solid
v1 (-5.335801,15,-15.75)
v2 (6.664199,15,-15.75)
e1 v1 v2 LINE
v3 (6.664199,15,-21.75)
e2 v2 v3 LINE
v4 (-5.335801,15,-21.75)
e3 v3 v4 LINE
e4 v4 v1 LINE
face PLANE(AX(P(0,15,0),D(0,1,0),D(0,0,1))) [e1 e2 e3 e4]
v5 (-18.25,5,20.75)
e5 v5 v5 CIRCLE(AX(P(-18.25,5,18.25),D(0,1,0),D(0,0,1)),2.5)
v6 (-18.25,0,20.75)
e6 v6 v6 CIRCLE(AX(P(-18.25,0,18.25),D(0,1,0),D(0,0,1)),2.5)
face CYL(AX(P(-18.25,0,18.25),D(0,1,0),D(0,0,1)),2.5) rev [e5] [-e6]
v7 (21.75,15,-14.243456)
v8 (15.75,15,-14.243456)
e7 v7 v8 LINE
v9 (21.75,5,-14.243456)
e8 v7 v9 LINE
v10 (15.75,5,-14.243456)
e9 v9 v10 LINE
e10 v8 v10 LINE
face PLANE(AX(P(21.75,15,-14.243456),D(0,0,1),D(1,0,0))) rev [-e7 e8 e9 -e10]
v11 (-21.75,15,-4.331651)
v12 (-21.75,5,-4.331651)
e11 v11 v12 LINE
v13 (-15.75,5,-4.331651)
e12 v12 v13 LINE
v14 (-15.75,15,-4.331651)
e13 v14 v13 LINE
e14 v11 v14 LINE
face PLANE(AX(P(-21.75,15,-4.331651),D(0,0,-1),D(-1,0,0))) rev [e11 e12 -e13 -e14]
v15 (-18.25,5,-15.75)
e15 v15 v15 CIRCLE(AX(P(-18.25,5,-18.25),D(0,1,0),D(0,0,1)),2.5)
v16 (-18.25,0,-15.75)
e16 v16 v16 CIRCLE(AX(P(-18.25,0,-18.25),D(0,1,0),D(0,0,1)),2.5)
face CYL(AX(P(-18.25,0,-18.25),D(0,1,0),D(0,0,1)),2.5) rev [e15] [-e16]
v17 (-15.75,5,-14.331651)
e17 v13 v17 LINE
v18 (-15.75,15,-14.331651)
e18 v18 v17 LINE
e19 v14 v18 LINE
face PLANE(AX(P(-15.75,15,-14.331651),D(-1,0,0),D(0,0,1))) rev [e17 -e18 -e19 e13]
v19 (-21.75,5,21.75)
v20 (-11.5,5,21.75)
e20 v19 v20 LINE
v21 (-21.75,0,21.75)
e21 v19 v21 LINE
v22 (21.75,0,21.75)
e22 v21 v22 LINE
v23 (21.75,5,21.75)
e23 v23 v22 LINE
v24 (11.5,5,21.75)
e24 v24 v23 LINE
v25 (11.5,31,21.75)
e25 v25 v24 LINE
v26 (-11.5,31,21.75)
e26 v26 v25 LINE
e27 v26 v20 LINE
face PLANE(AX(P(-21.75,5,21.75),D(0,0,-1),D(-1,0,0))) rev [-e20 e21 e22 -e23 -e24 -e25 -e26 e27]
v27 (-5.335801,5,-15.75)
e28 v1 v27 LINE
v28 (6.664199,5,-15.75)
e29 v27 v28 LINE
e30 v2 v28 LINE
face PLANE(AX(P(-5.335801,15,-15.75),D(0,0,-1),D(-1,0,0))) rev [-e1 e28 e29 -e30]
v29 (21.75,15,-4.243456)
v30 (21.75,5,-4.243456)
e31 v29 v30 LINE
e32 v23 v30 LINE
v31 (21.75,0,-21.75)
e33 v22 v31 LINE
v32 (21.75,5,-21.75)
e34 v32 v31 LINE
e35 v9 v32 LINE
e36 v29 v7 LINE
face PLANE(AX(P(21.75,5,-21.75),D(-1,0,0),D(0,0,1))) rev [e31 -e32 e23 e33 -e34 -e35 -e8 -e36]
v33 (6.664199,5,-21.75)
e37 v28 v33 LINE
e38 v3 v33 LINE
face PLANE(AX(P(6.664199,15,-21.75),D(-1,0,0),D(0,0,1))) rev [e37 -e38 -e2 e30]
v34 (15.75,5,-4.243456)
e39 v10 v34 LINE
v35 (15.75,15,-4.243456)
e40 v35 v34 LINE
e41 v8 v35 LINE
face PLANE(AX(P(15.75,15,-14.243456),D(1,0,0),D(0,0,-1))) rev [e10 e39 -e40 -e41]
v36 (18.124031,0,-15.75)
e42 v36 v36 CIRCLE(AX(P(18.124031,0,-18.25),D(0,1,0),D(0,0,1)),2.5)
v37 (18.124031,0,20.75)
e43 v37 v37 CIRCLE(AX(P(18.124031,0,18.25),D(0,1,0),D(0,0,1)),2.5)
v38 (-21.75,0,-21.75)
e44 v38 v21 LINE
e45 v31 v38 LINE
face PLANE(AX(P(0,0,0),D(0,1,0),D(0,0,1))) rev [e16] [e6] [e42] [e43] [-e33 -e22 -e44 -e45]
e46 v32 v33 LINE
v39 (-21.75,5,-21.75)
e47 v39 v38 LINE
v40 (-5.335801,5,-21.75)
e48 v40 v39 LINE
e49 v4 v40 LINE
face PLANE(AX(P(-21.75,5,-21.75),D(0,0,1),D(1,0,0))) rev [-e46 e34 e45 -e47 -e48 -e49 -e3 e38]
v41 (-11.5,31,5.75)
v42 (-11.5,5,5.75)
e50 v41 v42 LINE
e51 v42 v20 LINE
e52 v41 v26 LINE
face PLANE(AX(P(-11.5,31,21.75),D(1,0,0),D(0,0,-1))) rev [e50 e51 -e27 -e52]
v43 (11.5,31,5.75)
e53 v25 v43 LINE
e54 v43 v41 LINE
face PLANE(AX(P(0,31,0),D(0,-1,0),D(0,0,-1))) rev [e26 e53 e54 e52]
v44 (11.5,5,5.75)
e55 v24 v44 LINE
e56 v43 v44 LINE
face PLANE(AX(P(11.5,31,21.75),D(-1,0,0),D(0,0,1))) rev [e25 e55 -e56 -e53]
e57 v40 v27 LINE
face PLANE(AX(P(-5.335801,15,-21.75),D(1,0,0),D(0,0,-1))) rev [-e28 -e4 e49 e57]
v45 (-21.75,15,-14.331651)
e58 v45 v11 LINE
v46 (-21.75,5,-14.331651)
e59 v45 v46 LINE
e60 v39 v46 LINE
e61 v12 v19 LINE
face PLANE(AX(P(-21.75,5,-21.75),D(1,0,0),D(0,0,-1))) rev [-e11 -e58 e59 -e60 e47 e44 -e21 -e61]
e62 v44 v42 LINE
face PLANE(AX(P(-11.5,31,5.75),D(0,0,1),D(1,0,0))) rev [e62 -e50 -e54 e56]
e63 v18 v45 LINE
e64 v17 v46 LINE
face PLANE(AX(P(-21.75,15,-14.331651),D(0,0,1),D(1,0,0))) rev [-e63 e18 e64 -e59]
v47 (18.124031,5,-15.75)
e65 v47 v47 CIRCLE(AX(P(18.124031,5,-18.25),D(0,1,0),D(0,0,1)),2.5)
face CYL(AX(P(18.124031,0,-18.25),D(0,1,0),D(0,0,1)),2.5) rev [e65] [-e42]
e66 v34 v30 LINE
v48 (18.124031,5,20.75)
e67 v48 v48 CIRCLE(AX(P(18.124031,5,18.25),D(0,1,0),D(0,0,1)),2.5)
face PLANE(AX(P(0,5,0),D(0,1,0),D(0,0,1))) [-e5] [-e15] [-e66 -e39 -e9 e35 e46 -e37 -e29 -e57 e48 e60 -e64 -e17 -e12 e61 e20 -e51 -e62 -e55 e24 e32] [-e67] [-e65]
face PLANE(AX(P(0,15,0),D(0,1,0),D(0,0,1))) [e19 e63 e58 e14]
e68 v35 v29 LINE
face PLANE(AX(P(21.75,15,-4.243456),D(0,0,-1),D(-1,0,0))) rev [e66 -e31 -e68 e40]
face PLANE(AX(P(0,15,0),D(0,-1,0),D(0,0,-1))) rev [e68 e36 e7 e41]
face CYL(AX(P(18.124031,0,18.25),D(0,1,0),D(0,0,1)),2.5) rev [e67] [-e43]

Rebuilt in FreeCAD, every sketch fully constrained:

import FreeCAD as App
import Part
import Sketcher


def add_polygon(sketch, points):
    """Adds a closed chain of lines whose ends are joined by coincident constraints."""
    first, n = sketch.GeometryCount, len(points)
    for a, b in zip(points, points[1:] + points[:1]):
        sketch.addGeometry(Part.LineSegment(App.Vector(*a, 0), App.Vector(*b, 0)), False)
    for i in range(n):
        sketch.addConstraint(Sketcher.Constraint("Coincident", first + i, 2, first + (i + 1) % n, 1))

doc = App.newDocument("Part")
body = doc.addObject("PartDesign::Body", "Body")

# Sketch on XZ plane
sketch1 = doc.addObject("Sketcher::SketchObject", "Sketch")
body.addObject(sketch1)
sketch1.AttachmentSupport = (doc.XZ_Plane, [""])
sketch1.MapMode = "FlatFace"
add_polygon(sketch1, [(-21.75, -21.75), (-21.75, 21.75), (21.75, 21.75), (21.75, -21.75)])  # lines 0-3
sketch1.addConstraint([
    Sketcher.Constraint("Vertical", 0),
    Sketcher.Constraint("Horizontal", 1),
    Sketcher.Constraint("Vertical", 2),
    Sketcher.Constraint("Horizontal", 3),
    Sketcher.Constraint("Symmetric", 0, 2, 2, 2, -1, 1),
    Sketcher.Constraint("Equal", 3, 0),
    Sketcher.Constraint("DistanceX", 1, 1, 1, 2, 43.5),
])
pad1 = doc.addObject("PartDesign::Pad", "Pad")
body.addObject(pad1)
pad1.Profile = sketch1
pad1.Length = 5
pad1.Reversed = True

# Sketch on XZ plane
sketch2 = doc.addObject("Sketcher::SketchObject", "Sketch001")
body.addObject(sketch2)
sketch2.AttachmentSupport = (doc.XZ_Plane, [""])
sketch2.MapMode = "FlatFace"
sketch2.AttachmentOffset = App.Placement(App.Vector(0, 0, -5), App.Rotation())
add_polygon(sketch2, [(-11.5, 5.75), (-11.5, 21.75), (11.5, 21.75), (11.5, 5.75)])  # lines 0-3
sketch2.addConstraint([
    Sketcher.Constraint("Vertical", 0),
    Sketcher.Constraint("Horizontal", 1),
    Sketcher.Constraint("Vertical", 2),
    Sketcher.Constraint("Horizontal", 3),
    Sketcher.Constraint("DistanceX", 1, 1, 1, 2, 23.0),
    Sketcher.Constraint("DistanceY", 0, 1, 0, 2, 16.0),
    Sketcher.Constraint("DistanceX", 0, 2, -1, 1, 11.5),
    Sketcher.Constraint("DistanceY", -1, 1, 0, 2, 21.75),
])
pad2 = doc.addObject("PartDesign::Pad", "Pad001")
body.addObject(pad2)
pad2.Profile = sketch2
pad2.Length = 26
pad2.Reversed = True

# Sketch on XZ plane
sketch3 = doc.addObject("Sketcher::SketchObject", "Sketch002")
body.addObject(sketch3)
sketch3.AttachmentSupport = (doc.XZ_Plane, [""])
sketch3.MapMode = "FlatFace"
sketch3.AttachmentOffset = App.Placement(App.Vector(0, 0, -5), App.Rotation())
add_polygon(sketch3, [(-21.75, -14.331651), (-21.75, -4.331651), (-15.75, -4.331651), (-15.75, -14.331651)])  # lines 0-3
add_polygon(sketch3, [(-5.335801, -21.75), (-5.335801, -15.75), (6.664199, -15.75), (6.664199, -21.75)])  # lines 4-7
add_polygon(sketch3, [(15.75, -14.243456), (15.75, -4.243456), (21.75, -4.243456), (21.75, -14.243456)])  # lines 8-11
sketch3.addConstraint([
    Sketcher.Constraint("Vertical", 0),
    Sketcher.Constraint("Horizontal", 1),
    Sketcher.Constraint("Vertical", 2),
    Sketcher.Constraint("Horizontal", 3),
    Sketcher.Constraint("Vertical", 4),
    Sketcher.Constraint("Horizontal", 5),
    Sketcher.Constraint("Vertical", 6),
    Sketcher.Constraint("Horizontal", 7),
    Sketcher.Constraint("Vertical", 8),
    Sketcher.Constraint("Horizontal", 9),
    Sketcher.Constraint("Vertical", 10),
    Sketcher.Constraint("Horizontal", 11),
    Sketcher.Constraint("Equal", 3, 9),
    Sketcher.Constraint("Equal", 11, 4),
    Sketcher.Constraint("Equal", 2, 8),
    Sketcher.Constraint("DistanceX", 1, 1, 1, 2, 6.0),
    Sketcher.Constraint("DistanceX", 5, 1, 5, 2, 12.0),
    Sketcher.Constraint("DistanceY", 0, 1, 0, 2, 10.0),
    Sketcher.Constraint("DistanceX", 1, 2, 8, 2, 31.5),
    Sketcher.Constraint("DistanceX", 0, 2, -1, 1, 21.75),
    Sketcher.Constraint("DistanceY", 4, 2, -1, 1, 15.75),
    Sketcher.Constraint("DistanceX", 4, 2, -1, 1, 5.335801),
    Sketcher.Constraint("DistanceY", 0, 2, -1, 1, 4.331651),
    Sketcher.Constraint("DistanceY", 8, 2, -1, 1, 4.243456),
])
pad3 = doc.addObject("PartDesign::Pad", "Pad002")
body.addObject(pad3)
pad3.Profile = sketch3
pad3.Length = 10
pad3.Reversed = True

# Sketch on XZ plane
sketch4 = doc.addObject("Sketcher::SketchObject", "Sketch003")
body.addObject(sketch4)
sketch4.AttachmentSupport = (doc.XZ_Plane, [""])
sketch4.MapMode = "FlatFace"
sketch4.AttachmentOffset = App.Placement(App.Vector(0, 0, -5), App.Rotation())
sketch4.addGeometry([
    Part.Circle(App.Vector(-18.25, -18.25, 0), App.Vector(0, 0, 1), 2.5),
    Part.Circle(App.Vector(18.124031, -18.25, 0), App.Vector(0, 0, 1), 2.5),
    Part.Circle(App.Vector(18.124031, 18.25, 0), App.Vector(0, 0, 1), 2.5),
    Part.Circle(App.Vector(-18.25, 18.25, 0), App.Vector(0, 0, 1), 2.5),
], False)
sketch4.addConstraint([
    Sketcher.Constraint("Equal", 0, 1),
    Sketcher.Constraint("Equal", 1, 2),
    Sketcher.Constraint("Equal", 2, 3),
    Sketcher.Constraint("Symmetric", 1, 3, 2, 3, -1),
    Sketcher.Constraint("Symmetric", 0, 3, 3, 3, -1),
    Sketcher.Constraint("Horizontal", 0, 3, 1, 3),
    Sketcher.Constraint("Diameter", 0, 5.0),
    Sketcher.Constraint("DistanceY", 1, 3, 2, 3, 36.5),
    Sketcher.Constraint("DistanceX", 0, 3, -1, 1, 18.25),
    Sketcher.Constraint("DistanceX", -1, 1, 1, 3, 18.124031),
])
pocket1 = doc.addObject("PartDesign::Pocket", "Pocket")
body.addObject(pocket1)
pocket1.Profile = sketch4
pocket1.Type = "ThroughAll"
pocket1.Reversed = True

doc.recompute()
